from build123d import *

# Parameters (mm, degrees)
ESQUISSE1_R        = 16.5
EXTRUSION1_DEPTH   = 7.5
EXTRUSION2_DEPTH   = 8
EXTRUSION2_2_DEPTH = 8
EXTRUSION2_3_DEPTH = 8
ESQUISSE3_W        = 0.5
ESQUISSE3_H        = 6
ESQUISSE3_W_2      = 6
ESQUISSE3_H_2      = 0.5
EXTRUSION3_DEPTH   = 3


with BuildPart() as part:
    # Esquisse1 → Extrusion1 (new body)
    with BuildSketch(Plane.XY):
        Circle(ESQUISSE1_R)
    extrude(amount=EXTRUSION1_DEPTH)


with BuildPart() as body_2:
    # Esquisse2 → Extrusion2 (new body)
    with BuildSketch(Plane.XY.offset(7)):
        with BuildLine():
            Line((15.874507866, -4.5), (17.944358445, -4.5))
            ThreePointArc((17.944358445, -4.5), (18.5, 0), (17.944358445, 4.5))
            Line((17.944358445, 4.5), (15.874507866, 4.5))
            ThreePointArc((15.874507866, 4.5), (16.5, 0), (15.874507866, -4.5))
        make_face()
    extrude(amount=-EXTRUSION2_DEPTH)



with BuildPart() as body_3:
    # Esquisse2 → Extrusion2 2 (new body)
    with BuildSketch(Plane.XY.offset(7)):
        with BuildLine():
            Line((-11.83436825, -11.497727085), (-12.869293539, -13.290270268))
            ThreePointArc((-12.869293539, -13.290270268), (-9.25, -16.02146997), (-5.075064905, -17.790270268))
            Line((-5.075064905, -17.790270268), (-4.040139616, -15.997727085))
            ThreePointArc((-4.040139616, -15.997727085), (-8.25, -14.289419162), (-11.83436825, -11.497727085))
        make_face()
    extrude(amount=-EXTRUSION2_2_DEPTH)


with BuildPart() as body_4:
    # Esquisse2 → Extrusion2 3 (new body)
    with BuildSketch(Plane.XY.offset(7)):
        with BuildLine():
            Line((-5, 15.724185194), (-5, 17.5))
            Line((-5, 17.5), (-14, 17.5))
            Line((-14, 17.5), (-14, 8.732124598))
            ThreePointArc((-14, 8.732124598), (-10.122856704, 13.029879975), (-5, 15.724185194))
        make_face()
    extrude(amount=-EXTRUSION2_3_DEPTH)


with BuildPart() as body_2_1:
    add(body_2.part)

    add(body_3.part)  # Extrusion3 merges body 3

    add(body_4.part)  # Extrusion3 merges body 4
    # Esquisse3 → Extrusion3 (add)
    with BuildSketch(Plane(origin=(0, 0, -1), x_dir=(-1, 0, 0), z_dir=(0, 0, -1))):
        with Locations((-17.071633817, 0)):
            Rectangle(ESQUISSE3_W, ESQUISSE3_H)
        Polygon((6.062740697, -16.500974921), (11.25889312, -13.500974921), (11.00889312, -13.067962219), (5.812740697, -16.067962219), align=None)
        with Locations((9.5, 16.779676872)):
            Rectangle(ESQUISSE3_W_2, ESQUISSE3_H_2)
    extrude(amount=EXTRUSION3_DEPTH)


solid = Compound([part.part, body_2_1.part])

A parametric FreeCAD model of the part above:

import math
import FreeCAD as App
import Part
import Sketcher

V = App.Vector
Q = App.Units.Quantity

doc = App.newDocument("Part")
body = doc.addObject("PartDesign::Body", "Body")

sketch1 = body.newObject("Sketcher::SketchObject", "Sketch")
sketch1.AttachmentSupport = (doc.getObject("XY_Plane"), [""])
sketch1.MapMode = "FlatFace"
sketch1.addGeometry(Part.Circle(V(0, 0, 0), V(0, 0, 1), 16), False)
sketch1.addConstraint([
    Sketcher.Constraint("Coincident", 0, 3, -1, 1),
    Sketcher.Constraint("Diameter", 0, Q("33 mm")),
])
pad1 = body.newObject("PartDesign::Pad", "Pad")
pad1.Profile = sketch1
pad1.Length = 7.5
body2 = doc.addObject("PartDesign::Body", "Body001")

sketch2 = body2.newObject("Sketcher::SketchObject", "Sketch001")
sketch2.AttachmentSupport = (doc.getObject("XY_Plane001"), [""])
sketch2.MapMode = "FlatFace"
sketch2.AttachmentOffset = App.Placement(V(0, 0, 7), App.Rotation())
sketch2.addGeometry([
    Part.LineSegment(V(15.9, -4.5, 0), V(17.9, -4.5, 0)),
    Part.ArcOfCircle(Part.Circle(V(0, 0, 0), V(0, 0, 1), 18.5), math.radians(-14), math.radians(14)),
    Part.LineSegment(V(17.9, 4.5, 0), V(15.9, 4.5, 0)),
    Part.ArcOfCircle(Part.Circle(V(0, 0, 0), V(0, 0, 1), 16.5), math.radians(-16), math.radians(16)),
], False)
sketch2.addConstraint([
    Sketcher.Constraint("Coincident", 0, 2, 1, 1),
    Sketcher.Constraint("Coincident", 1, 2, 2, 1),
    Sketcher.Constraint("Coincident", 2, 2, 3, 2),
    Sketcher.Constraint("Coincident", 3, 1, 0, 1),
    Sketcher.Constraint("Horizontal", 0),
    Sketcher.Constraint("Horizontal", 2),
    Sketcher.Constraint("Coincident", 1, 3, -1, 1),
    Sketcher.Constraint("Coincident", 3, 3, -1, 1),
    Sketcher.Constraint("Vertical", 0, 2, 1, 2),
    Sketcher.Constraint("Radius", 1, Q("18.5 mm")),
    Sketcher.Constraint("Radius", 3, Q("16.5 mm")),
    Sketcher.Constraint("DistanceY", 0, 2, 1, 2, Q("9 mm")),
])
pad2 = body2.newObject("PartDesign::Pad", "Pad001")
pad2.Profile = sketch2
pad2.Length = 8
pad2.Reversed = True
body3 = doc.addObject("PartDesign::Body", "Body002")

sketch3 = body3.newObject("Sketcher::SketchObject", "Sketch002")
sketch3.AttachmentSupport = (doc.getObject("XY_Plane002"), [""])
sketch3.MapMode = "FlatFace"
sketch3.AttachmentOffset = App.Placement(V(0, 0, 7), App.Rotation())
sketch3.addGeometry([
    Part.LineSegment(V(-11.8, -11.5, 0), V(-12.9, -13.3, 0)),
    Part.ArcOfCircle(Part.Circle(V(0, 0, 0), V(0, 0, 1), 18.5), math.radians(-134), math.radians(-106)),
    Part.LineSegment(V(-5.1, -17.8, 0), V(-4, -16, 0)),
    Part.ArcOfCircle(Part.Circle(V(0, 0, 0), V(0, 0, 1), 16.5), math.radians(-136), math.radians(-104)),
], False)
sketch3.addConstraint([
    Sketcher.Constraint("Coincident", 0, 2, 1, 1),
    Sketcher.Constraint("Coincident", 1, 2, 2, 1),
    Sketcher.Constraint("Coincident", 2, 2, 3, 2),
    Sketcher.Constraint("Coincident", 3, 1, 0, 1),
    Sketcher.Constraint("Coincident", 1, 3, -1, 1),
    Sketcher.Constraint("Coincident", 3, 3, -1, 1),
    Sketcher.Constraint("Parallel", 0, 2),
    Sketcher.Constraint("Equal", 0, 2),
    Sketcher.Constraint("Radius", 1, Q("18.5 mm")),
    Sketcher.Constraint("Radius", 3, Q("16.5 mm")),
    Sketcher.Constraint("Angle", 0, Q("-120 deg")),
    Sketcher.Constraint("DistanceY", 1, 2, 0, 2, Q("4.5 mm")),
])
pad3 = body3.newObject("PartDesign::Pad", "Pad002")
pad3.Profile = sketch3
pad3.Length = 8
pad3.Reversed = True
body4 = doc.addObject("PartDesign::Body", "Body003")

sketch4 = body4.newObject("Sketcher::SketchObject", "Sketch003")
sketch4.AttachmentSupport = (doc.getObject("XY_Plane003"), [""])
sketch4.MapMode = "FlatFace"
sketch4.AttachmentOffset = App.Placement(V(0, 0, 7), App.Rotation())
sketch4.addGeometry([
    Part.LineSegment(V(-5, 15.7, 0), V(-5, 17.5, 0)),
    Part.LineSegment(V(-5, 17.5, 0), V(-14, 17.5, 0)),
    Part.LineSegment(V(-14, 17.5, 0), V(-14, 8.7, 0)),
    Part.ArcOfCircle(Part.Circle(V(0, 0, 0), V(0, 0, 1), 16.5), math.radians(108), math.radians(148)),
], False)
sketch4.addConstraint([
    Sketcher.Constraint("Coincident", 0, 2, 1, 1),
    Sketcher.Constraint("Coincident", 1, 2, 2, 1),
    Sketcher.Constraint("Coincident", 2, 2, 3, 2),
    Sketcher.Constraint("Coincident", 3, 1, 0, 1),
    Sketcher.Constraint("Vertical", 0),
    Sketcher.Constraint("Horizontal", 1),
    Sketcher.Constraint("Vertical", 2),
    Sketcher.Constraint("Coincident", 3, 3, -1, 1),
    Sketcher.Constraint("Radius", 3, Q("16.5 mm")),
    Sketcher.Constraint("DistanceX", 1, 2, 1, 1, Q("9 mm")),
    Sketcher.Constraint("DistanceX", 0, 2, -1, 1, Q("5 mm")),
    Sketcher.Constraint("DistanceY", -1, 1, 0, 2, Q("17.5 mm")),
])
pad4 = body4.newObject("PartDesign::Pad", "Pad003")
pad4.Profile = sketch4
pad4.Length = 8
pad4.Reversed = True
body2.AllowCompound = True
doc.recompute()

boolean = body2.newObject("PartDesign::Boolean", "Boolean")
boolean.Type = "Fuse"
boolean.addObjects([body3])
doc.recompute()

boolean2 = body2.newObject("PartDesign::Boolean", "Boolean001")
boolean2.Type = "Fuse"
boolean2.addObjects([body4])

sketch5 = body2.newObject("Sketcher::SketchObject", "Sketch004")
sketch5.AttachmentSupport = (doc.getObject("XY_Plane001"), [""])
sketch5.MapMode = "FlatFace"
sketch5.AttachmentOffset = App.Placement(V(0, 0, -1), App.Rotation())
sketch5.addGeometry([
    Part.LineSegment(V(17.3, 3, 0), V(17.3, -3, 0)),
    Part.LineSegment(V(17.3, -3, 0), V(16.8, -3, 0)),
    Part.LineSegment(V(16.8, -3, 0), V(16.8, 3, 0)),
    Part.LineSegment(V(16.8, 3, 0), V(17.3, 3, 0)),
    Part.LineSegment(V(-6.1, -16.5, 0), V(-11.3, -13.5, 0)),
    Part.LineSegment(V(-11.3, -13.5, 0), V(-11, -13.1, 0)),
    Part.LineSegment(V(-11, -13.1, 0), V(-5.8, -16.1, 0)),
    Part.LineSegment(V(-5.8, -16.1, 0), V(-6.1, -16.5, 0)),
    Part.LineSegment(V(-6.5, 17, 0), V(-6.5, 16.5, 0)),
    Part.LineSegment(V(-6.5, 16.5, 0), V(-12.5, 16.5, 0)),
    Part.LineSegment(V(-12.5, 16.5, 0), V(-12.5, 17, 0)),
    Part.LineSegment(V(-12.5, 17, 0), V(-6.5, 17, 0)),
], False)
sketch5.addConstraint([
    Sketcher.Constraint("Coincident", 0, 2, 1, 1),
    Sketcher.Constraint("Coincident", 1, 2, 2, 1),
    Sketcher.Constraint("Coincident", 2, 2, 3, 1),
    Sketcher.Constraint("Coincident", 3, 2, 0, 1),
    Sketcher.Constraint("Coincident", 4, 2, 5, 1),
    Sketcher.Constraint("Coincident", 5, 2, 6, 1),
    Sketcher.Constraint("Coincident", 6, 2, 7, 1),
    Sketcher.Constraint("Coincident", 7, 2, 4, 1),
    Sketcher.Constraint("Coincident", 8, 2, 9, 1),
    Sketcher.Constraint("Coincident", 9, 2, 10, 1),
    Sketcher.Constraint("Coincident", 10, 2, 11, 1),
    Sketcher.Constraint("Coincident", 11, 2, 8, 1),
    Sketcher.Constraint("Vertical", 0),
    Sketcher.Constraint("Horizontal", 1),
    Sketcher.Constraint("Vertical", 2),
    Sketcher.Constraint("Horizontal", 3),
    Sketcher.Constraint("Vertical", 8),
    Sketcher.Constraint("Horizontal", 9),
    Sketcher.Constraint("Vertical", 10),
    Sketcher.Constraint("Horizontal", 11),
    Sketcher.Constraint("Perpendicular", 4, 5),
    Sketcher.Constraint("Perpendicular", 5, 6),
    Sketcher.Constraint("Perpendicular", 6, 7),
    Sketcher.Constraint("Equal", 11, 0),
    Sketcher.Constraint("Equal", 3, 8),
    Sketcher.Constraint("DistanceX", 9, 2, 9, 1, Q("6 mm")),
    Sketcher.Constraint("Angle", 4, Q("150 deg")),
    Sketcher.Constraint("Distance", 4, Q("6 mm")),
    Sketcher.Constraint("DistanceX", 1, 2, 1, 1, Q("0.5 mm")),
    Sketcher.Constraint("DistanceY", 0, 2, -1, 1, Q("3 mm")),
    Sketcher.Constraint("Distance", 5, Q("0.5 mm")),
    Sketcher.Constraint("DistanceX", 8, 2, -1, 1, Q("6.5 mm")),
    Sketcher.Constraint("DistanceX", 6, 2, -1, 1, Q("5.812741 mm")),
    Sketcher.Constraint("DistanceY", 5, 2, 8, 2, Q("29.597639 mm")),
    Sketcher.Constraint("DistanceX", -1, 1, 0, 2, Q("17.321634 mm")),
    Sketcher.Constraint("DistanceY", 4, 2, -1, 1, Q("13.500975 mm")),
])
pad5 = body2.newObject("PartDesign::Pad", "Pad004")
pad5.Profile = sketch5
pad5.Length = 3
pad5.Reversed = True

doc.recompute()
